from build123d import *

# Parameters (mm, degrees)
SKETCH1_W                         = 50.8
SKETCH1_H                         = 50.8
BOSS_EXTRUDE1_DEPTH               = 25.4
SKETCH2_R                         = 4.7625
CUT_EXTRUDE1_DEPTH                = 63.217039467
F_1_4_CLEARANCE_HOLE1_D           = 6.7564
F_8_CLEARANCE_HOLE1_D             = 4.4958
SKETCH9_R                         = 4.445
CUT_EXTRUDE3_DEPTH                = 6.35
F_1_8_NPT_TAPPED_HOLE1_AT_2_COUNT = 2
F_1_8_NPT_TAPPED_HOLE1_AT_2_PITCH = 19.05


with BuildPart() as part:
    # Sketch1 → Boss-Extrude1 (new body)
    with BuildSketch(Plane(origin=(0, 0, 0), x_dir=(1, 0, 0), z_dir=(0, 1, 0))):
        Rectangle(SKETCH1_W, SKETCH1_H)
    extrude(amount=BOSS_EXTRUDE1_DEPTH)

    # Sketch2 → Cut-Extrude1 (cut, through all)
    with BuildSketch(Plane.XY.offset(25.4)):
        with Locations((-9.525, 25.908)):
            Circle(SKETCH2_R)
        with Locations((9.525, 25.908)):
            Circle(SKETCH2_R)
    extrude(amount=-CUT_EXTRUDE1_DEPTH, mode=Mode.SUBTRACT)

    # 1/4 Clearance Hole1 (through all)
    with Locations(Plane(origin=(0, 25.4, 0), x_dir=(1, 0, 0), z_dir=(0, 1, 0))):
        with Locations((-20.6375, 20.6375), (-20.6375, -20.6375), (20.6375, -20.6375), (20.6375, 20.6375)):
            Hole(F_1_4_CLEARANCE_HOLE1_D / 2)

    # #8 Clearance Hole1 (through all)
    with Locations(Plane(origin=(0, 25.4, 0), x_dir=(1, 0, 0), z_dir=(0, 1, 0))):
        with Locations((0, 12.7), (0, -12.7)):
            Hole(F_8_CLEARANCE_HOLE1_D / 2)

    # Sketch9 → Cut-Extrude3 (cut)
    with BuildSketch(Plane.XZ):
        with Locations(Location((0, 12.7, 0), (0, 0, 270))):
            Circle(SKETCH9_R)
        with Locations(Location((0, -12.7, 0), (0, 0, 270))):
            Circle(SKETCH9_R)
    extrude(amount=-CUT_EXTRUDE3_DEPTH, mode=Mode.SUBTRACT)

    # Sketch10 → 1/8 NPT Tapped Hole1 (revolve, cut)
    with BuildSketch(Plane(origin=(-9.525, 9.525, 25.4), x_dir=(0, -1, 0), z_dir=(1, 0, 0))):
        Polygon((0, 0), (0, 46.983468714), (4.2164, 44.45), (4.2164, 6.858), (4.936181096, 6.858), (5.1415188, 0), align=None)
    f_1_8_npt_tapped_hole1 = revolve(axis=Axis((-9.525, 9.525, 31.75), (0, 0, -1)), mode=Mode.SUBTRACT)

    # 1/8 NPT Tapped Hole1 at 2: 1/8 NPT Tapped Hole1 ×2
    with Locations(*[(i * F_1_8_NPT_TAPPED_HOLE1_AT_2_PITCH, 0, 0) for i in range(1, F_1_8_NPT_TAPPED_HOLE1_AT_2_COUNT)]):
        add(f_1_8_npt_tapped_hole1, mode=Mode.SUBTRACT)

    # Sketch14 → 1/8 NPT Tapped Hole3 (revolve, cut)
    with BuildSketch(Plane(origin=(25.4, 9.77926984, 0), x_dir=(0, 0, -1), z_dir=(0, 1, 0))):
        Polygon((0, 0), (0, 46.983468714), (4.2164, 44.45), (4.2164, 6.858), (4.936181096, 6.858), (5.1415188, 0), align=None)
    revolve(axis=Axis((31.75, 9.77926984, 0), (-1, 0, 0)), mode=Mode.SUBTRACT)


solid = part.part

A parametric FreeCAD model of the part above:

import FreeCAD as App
import Part
import Sketcher

V = App.Vector
Q = App.Units.Quantity

doc = App.newDocument("Part")
body = doc.addObject("PartDesign::Body", "Body")

# Sketch on XZ plane
sketch1 = body.newObject("Sketcher::SketchObject", "Sketch")
sketch1.AttachmentSupport = (doc.getObject("XZ_Plane"), [""])
sketch1.MapMode = "FlatFace"
sketch1.addGeometry([
    Part.LineSegment(V(-25, -25, 0), V(-25, 25, 0)),
    Part.LineSegment(V(-25, 25, 0), V(25, 25, 0)),
    Part.LineSegment(V(25, 25, 0), V(25, -25, 0)),
    Part.LineSegment(V(25, -25, 0), V(-25, -25, 0)),
], False)
sketch1.addConstraint([
    Sketcher.Constraint("Coincident", 0, 2, 1, 1),
    Sketcher.Constraint("Coincident", 1, 2, 2, 1),
    Sketcher.Constraint("Coincident", 2, 2, 3, 1),
    Sketcher.Constraint("Coincident", 3, 2, 0, 1),
    Sketcher.Constraint("Vertical", 0),
    Sketcher.Constraint("Horizontal", 1),
    Sketcher.Constraint("Vertical", 2),
    Sketcher.Constraint("Horizontal", 3),
    Sketcher.Constraint("Symmetric", 0, 2, 2, 2, -1, 1),
    Sketcher.Constraint("Equal", 3, 0),
    Sketcher.Constraint("DistanceX", 1, 1, 1, 2, Q("2 in")),
])
pad1 = body.newObject("PartDesign::Pad", "Pad")
pad1.Profile = sketch1
pad1.Length = Q("1 in")
pad1.Reversed = True

# Sketch on XY plane
sketch2 = body.newObject("Sketcher::SketchObject", "Sketch001")
sketch2.AttachmentSupport = (doc.getObject("XY_Plane"), [""])
sketch2.MapMode = "FlatFace"
sketch2.AttachmentOffset = App.Placement(V(0, 0, 1 * 25.4), App.Rotation())
sketch2.addGeometry([
    Part.Circle(V(-9.5, 25.9, 0), V(0, 0, 1), 4.8),
    Part.Circle(V(9.5, 25.9, 0), V(0, 0, 1), 4.8),
], False)
sketch2.addConstraint([
    Sketcher.Constraint("Equal", 0, 1),
    Sketcher.Constraint("Symmetric", 0, 3, 1, 3, -2),
    Sketcher.Constraint("Diameter", 0, Q("0.375 in")),
    Sketcher.Constraint("DistanceY", -1, 1, 0, 3, Q("1.02 in")),
    Sketcher.Constraint("DistanceX", 0, 3, 1, 3, Q("0.75 in")),
])
pocket1 = body.newObject("PartDesign::Pocket", "Pocket")
pocket1.Profile = sketch2
pocket1.Type = "ThroughAll"

# Sketch on XZ plane
sketch3 = body.newObject("Sketcher::SketchObject", "Sketch002")
sketch3.AttachmentSupport = (doc.getObject("XZ_Plane"), [""])
sketch3.MapMode = "FlatFace"
sketch3.AttachmentOffset = App.Placement(V(0, 0, -1 * 25.4), App.Rotation())
sketch3.addGeometry([
    Part.Circle(V(-20.6, -20.6, 0), V(0, 0, 1), 3.4),
    Part.Circle(V(-20.6, 20.6, 0), V(0, 0, 1), 3.4),
    Part.Circle(V(20.6, 20.6, 0), V(0, 0, 1), 3.4),
    Part.Circle(V(20.6, -20.6, 0), V(0, 0, 1), 3.4),
], False)
sketch3.addConstraint([
    Sketcher.Constraint("Equal", 0, 1),
    Sketcher.Constraint("Equal", 1, 2),
    Sketcher.Constraint("Equal", 2, 3),
    Sketcher.Constraint("Symmetric", 0, 3, 2, 3, -1, 1),
    Sketcher.Constraint("Symmetric", 1, 3, 3, 3, -1, 1),
    Sketcher.Constraint("Symmetric", 1, 3, 2, 3, -2),
    Sketcher.Constraint("Diameter", 0, Q("0.266 in")),
    Sketcher.Constraint("DistanceX", 0, 3, -1, 1, Q("0.8125 in")),
    Sketcher.Constraint("DistanceY", 0, 3, -1, 1, Q("0.8125 in")),
])
doc.recompute()
hole = body.newObject("PartDesign::Hole", "Hole")
hole.Profile = sketch3
hole.ThreadType = "None"
hole.Diameter = Q("0.266 in")
hole.DepthType = "ThroughAll"
hole.Reversed = True

# Sketch on XZ plane
sketch4 = body.newObject("Sketcher::SketchObject", "Sketch003")
sketch4.AttachmentSupport = (doc.getObject("XZ_Plane"), [""])
sketch4.MapMode = "FlatFace"
sketch4.AttachmentOffset = App.Placement(V(0, 0, -1 * 25.4), App.Rotation())
sketch4.addGeometry([
    Part.Circle(V(0, -12.7, 0), V(0, 0, 1), 2.2),
    Part.Circle(V(0, 12.7, 0), V(0, 0, 1), 2.2),
], False)
sketch4.addConstraint([
    Sketcher.Constraint("Equal", 0, 1),
    Sketcher.Constraint("Symmetric", 0, 3, 1, 3, -1, 1),
    Sketcher.Constraint("PointOnObject", 0, 3, -2),
    Sketcher.Constraint("Diameter", 0, Q("0.177 in")),
    Sketcher.Constraint("DistanceY", 0, 3, 1, 3, Q("1 in")),
])
doc.recompute()
hole2 = body.newObject("PartDesign::Hole", "Hole001")
hole2.Profile = sketch4
hole2.ThreadType = "None"
hole2.Diameter = Q("0.177 in")
hole2.DepthType = "ThroughAll"
hole2.Reversed = True

# Sketch on XZ plane
sketch5 = body.newObject("Sketcher::SketchObject", "Sketch004")
sketch5.AttachmentSupport = (doc.getObject("XZ_Plane"), [""])
sketch5.MapMode = "FlatFace"
sketch5.addGeometry([
    Part.Circle(V(0, 12.7, 0), V(0, 0, 1), 4.4),
    Part.Circle(V(0, -12.7, 0), V(0, 0, 1), 4.4),
], False)
sketch5.addConstraint([
    Sketcher.Constraint("Equal", 0, 1),
    Sketcher.Constraint("Symmetric", 0, 3, 1, 3, -1, 1),
    Sketcher.Constraint("PointOnObject", 0, 3, -2),
    Sketcher.Constraint("Diameter", 0, Q("0.35 in")),
    Sketcher.Constraint("DistanceY", 1, 3, 0, 3, Q("1 in")),
])
pocket2 = body.newObject("PartDesign::Pocket", "Pocket001")
pocket2.Profile = sketch5
pocket2.Length = Q("0.25 in")

# Sketch on YZ plane
sketch6 = body.newObject("Sketcher::SketchObject", "Sketch005")
sketch6.AttachmentSupport = (doc.getObject("YZ_Plane"), [""])
sketch6.MapMode = "FlatFace"
sketch6.AttachmentOffset = App.Placement(V(0, 0, -0.375 * 25.4), App.Rotation())
sketch6.addGeometry([
    Part.LineSegment(V(9.5, -21.6, 0), V(9.5, 25.4, 0)),  # 0
    Part.LineSegment(V(9.5, 25.4, 0), V(4.4, 25.4, 0)),  # 1
    Part.LineSegment(V(4.4, 25.4, 0), V(4.6, 18.5, 0)),  # 2
    Part.LineSegment(V(4.6, 18.5, 0), V(5.3, 18.5, 0)),  # 3
    Part.LineSegment(V(5.3, 18.5, 0), V(5.3, -19.1, 0)),  # 4
    Part.LineSegment(V(5.3, -19.1, 0), V(9.5, -21.6, 0)),  # 5
], False)
sketch6.addGeometry(Part.LineSegment(V(9.5, 25.4, 0), V(9.5, -21.6, 0)), True)  # axis
sketch6.addConstraint([
    Sketcher.Constraint("Coincident", 0, 2, 1, 1),
    Sketcher.Constraint("Coincident", 1, 2, 2, 1),
    Sketcher.Constraint("Coincident", 2, 2, 3, 1),
    Sketcher.Constraint("Coincident", 3, 2, 4, 1),
    Sketcher.Constraint("Coincident", 4, 2, 5, 1),
    Sketcher.Constraint("Coincident", 5, 2, 0, 1),
    Sketcher.Constraint("Vertical", 0),
    Sketcher.Constraint("Horizontal", 1),
    Sketcher.Constraint("Horizontal", 3),
    Sketcher.Constraint("Vertical", 4),
    Sketcher.Constraint("Vertical", 6),
    Sketcher.Constraint("Coincident", 6, 1, 0, 2),
    Sketcher.Constraint("Equal", 0, 6),
    Sketcher.Constraint("DistanceY", -1, 1, 0, 2, Q("1 in")),
    Sketcher.Constraint("Angle", 5, Q("-31 deg")),
    Sketcher.Constraint("DistanceY", 4, 2, 4, 1, Q("1.48 in")),
    Sketcher.Constraint("DistanceY", -1, 1, 2, 2, Q("0.73 in")),
    Sketcher.Constraint("DistanceX", -1, 1, 0, 2, Q("0.375 in")),
    Sketcher.Constraint("DistanceX", -1, 1, 3, 2, Q("0.209 in")),
    Sketcher.Constraint("DistanceX", 1, 2, 1, 1, Q("5.141519 mm")),
    Sketcher.Constraint("DistanceX", 3, 1, 3, 2, Q("0.719781 mm")),
])
groove = body.newObject("PartDesign::Groove", "Groove")
groove.Profile = sketch6
groove.ReferenceAxis = (sketch6, ["Axis0"])
groove.Angle = 360
doc.recompute()

linearpattern = body.newObject("PartDesign::LinearPattern", "LinearPattern")
linearpattern.Originals = [groove]
linearpattern.Direction = (doc.getObject("X_Axis"), [""])
linearpattern.Mode = "offset"
linearpattern.Offset = Q("0.75 in")
linearpattern.Occurrences = 2
body.Tip = linearpattern

# Sketch on XZ plane
sketch7 = body.newObject("Sketcher::SketchObject", "Sketch006")
sketch7.AttachmentSupport = (doc.getObject("XZ_Plane"), [""])
sketch7.MapMode = "FlatFace"
sketch7.AttachmentOffset = App.Placement(V(0, 0, -9.77927), App.Rotation())
sketch7.addGeometry([
    Part.LineSegment(V(-21.6, 0, 0), V(25.4, 0, 0)),  # 0
    Part.LineSegment(V(25.4, 0, 0), V(25.4, -5.1, 0)),  # 1
    Part.LineSegment(V(25.4, -5.1, 0), V(18.5, -4.9, 0)),  # 2
    Part.LineSegment(V(18.5, -4.9, 0), V(18.5, -4.2, 0)),  # 3
    Part.LineSegment(V(18.5, -4.2, 0), V(-19.1, -4.2, 0)),  # 4
    Part.LineSegment(V(-19.1, -4.2, 0), V(-21.6, 0, 0)),  # 5
], False)
sketch7.addConstraint([
    Sketcher.Constraint("Coincident", 0, 2, 1, 1),
    Sketcher.Constraint("Coincident", 1, 2, 2, 1),
    Sketcher.Constraint("Coincident", 2, 2, 3, 1),
    Sketcher.Constraint("Coincident", 3, 2, 4, 1),
    Sketcher.Constraint("Coincident", 4, 2, 5, 1),
    Sketcher.Constraint("Coincident", 5, 2, 0, 1),
    Sketcher.Constraint("Horizontal", 0),
    Sketcher.Constraint("Vertical", 1),
    Sketcher.Constraint("Vertical", 3),
    Sketcher.Constraint("Horizontal", 4),
    Sketcher.Constraint("PointOnObject", 0, 2, -1),
    Sketcher.Constraint("DistanceX", -1, 1, 0, 2, Q("1 in")),
    Sketcher.Constraint("Angle", 5, Q("121 deg")),
    Sketcher.Constraint("DistanceX", 4, 2, 4, 1, Q("1.48 in")),
    Sketcher.Constraint("DistanceX", -1, 1, 2, 2, Q("0.73 in")),
    Sketcher.Constraint("DistanceY", 3, 2, -1, 1, Q("0.166 in")),
    Sketcher.Constraint("DistanceY", 1, 2, 1, 1, Q("5.141519 mm")),
    Sketcher.Constraint("DistanceY", 3, 1, 3, 2, Q("0.719781 mm")),
])
groove2 = body.newObject("PartDesign::Groove", "Groove001")
groove2.Profile = sketch7
groove2.ReferenceAxis = (sketch7, ["H_Axis"])
groove2.Angle = 360

doc.recompute()
